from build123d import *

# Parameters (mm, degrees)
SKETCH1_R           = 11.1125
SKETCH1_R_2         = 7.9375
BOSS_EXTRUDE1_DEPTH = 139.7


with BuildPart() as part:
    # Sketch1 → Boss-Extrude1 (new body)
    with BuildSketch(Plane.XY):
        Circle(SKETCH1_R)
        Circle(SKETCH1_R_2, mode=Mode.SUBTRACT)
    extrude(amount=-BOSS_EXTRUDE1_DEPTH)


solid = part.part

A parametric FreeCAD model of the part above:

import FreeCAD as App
import Part
import Sketcher
from FreeCAD import Vector
Q = App.Units.Quantity

doc = App.newDocument("Part")
body = doc.addObject("PartDesign::Body", "Body")

# Sketch on XY plane
sketch1 = doc.addObject("Sketcher::SketchObject", "Sketch")
body.addObject(sketch1)
sketch1.AttachmentSupport = (doc.XY_Plane, [""])
sketch1.MapMode = "FlatFace"
sketch1.addGeometry(Part.Circle(Vector(0, 0, 0), Vector(0, 0, 1), 11), False)
sketch1.addGeometry(Part.Circle(Vector(0, 0, 0), Vector(0, 0, 1), 8), False)
sketch1.addConstraint(Sketcher.Constraint("Coincident", 0, 3, -1, 1))
sketch1.addConstraint(Sketcher.Constraint("Coincident", 1, 3, -1, 1))
sketch1.addConstraint(Sketcher.Constraint("Diameter", 0, Q("0.875 in")))
sketch1.addConstraint(Sketcher.Constraint("Diameter", 1, Q("0.625 in")))
pad1 = doc.addObject("PartDesign::Pad", "Pad")
body.addObject(pad1)
pad1.Profile = sketch1
pad1.Length = Q("5.5 in")
pad1.Reversed = True

doc.recompute()
